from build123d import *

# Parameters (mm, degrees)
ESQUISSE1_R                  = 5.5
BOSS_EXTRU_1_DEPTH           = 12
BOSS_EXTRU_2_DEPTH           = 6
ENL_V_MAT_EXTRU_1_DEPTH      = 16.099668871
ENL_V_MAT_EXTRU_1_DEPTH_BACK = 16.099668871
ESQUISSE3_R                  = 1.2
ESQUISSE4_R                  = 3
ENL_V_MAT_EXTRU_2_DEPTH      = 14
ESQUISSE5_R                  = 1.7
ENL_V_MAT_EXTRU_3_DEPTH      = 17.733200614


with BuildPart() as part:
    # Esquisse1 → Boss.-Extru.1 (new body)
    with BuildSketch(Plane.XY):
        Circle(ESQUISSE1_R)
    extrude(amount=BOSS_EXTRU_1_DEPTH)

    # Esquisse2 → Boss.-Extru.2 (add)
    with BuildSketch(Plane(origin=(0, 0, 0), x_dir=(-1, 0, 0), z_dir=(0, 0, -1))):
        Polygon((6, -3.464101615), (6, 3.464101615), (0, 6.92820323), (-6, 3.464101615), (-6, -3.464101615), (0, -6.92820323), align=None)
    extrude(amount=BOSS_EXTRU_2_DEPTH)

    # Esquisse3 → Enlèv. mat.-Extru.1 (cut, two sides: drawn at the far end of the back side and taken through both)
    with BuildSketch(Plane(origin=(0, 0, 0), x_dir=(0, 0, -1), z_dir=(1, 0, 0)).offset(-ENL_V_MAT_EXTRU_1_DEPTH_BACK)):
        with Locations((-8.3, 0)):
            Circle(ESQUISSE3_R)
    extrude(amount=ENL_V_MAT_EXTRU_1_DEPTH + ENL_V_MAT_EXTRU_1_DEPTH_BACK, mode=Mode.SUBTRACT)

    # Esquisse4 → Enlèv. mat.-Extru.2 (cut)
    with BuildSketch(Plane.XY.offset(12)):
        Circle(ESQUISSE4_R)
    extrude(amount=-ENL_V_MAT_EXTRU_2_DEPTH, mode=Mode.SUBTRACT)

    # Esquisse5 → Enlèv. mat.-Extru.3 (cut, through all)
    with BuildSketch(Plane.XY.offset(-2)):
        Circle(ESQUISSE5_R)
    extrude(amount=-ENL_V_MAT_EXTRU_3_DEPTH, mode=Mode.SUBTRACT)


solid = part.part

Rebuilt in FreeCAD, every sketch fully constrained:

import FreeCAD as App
import Part
import Sketcher
from FreeCAD import Vector
Q = App.Units.Quantity

doc = App.newDocument("Part")
body = doc.addObject("PartDesign::Body", "Body")

# Sketch on XY plane
sketch1 = body.newObject("Sketcher::SketchObject", "Sketch")
sketch1.AttachmentSupport = (doc.getObject("XY_Plane"), [""])
sketch1.MapMode = "FlatFace"
sketch1.addGeometry(Part.Circle(Vector(0, 0, 0), Vector(0, 0, 1), 6), False)
sketch1.addConstraint(Sketcher.Constraint("Coincident", 0, 3, -1, 1))
sketch1.addConstraint(Sketcher.Constraint("Diameter", 0, Q("11 mm")))
pad1 = body.newObject("PartDesign::Pad", "Pad")
pad1.Profile = sketch1
pad1.Length = 12

# Sketch on XY plane
sketch2 = body.newObject("Sketcher::SketchObject", "Sketch001")
sketch2.AttachmentSupport = (doc.getObject("XY_Plane"), [""])
sketch2.MapMode = "FlatFace"
sketch2.addGeometry(Part.LineSegment(Vector(-6, -3, 0), Vector(-6, 3, 0)), False)
sketch2.addGeometry(Part.LineSegment(Vector(-6, 3, 0), Vector(0, 7, 0)), False)
sketch2.addGeometry(Part.LineSegment(Vector(0, 7, 0), Vector(6, 3, 0)), False)
sketch2.addGeometry(Part.LineSegment(Vector(6, 3, 0), Vector(6, -3, 0)), False)
sketch2.addGeometry(Part.LineSegment(Vector(6, -3, 0), Vector(0, -7, 0)), False)
sketch2.addGeometry(Part.LineSegment(Vector(0, -7, 0), Vector(-6, -3, 0)), False)
sketch2.addConstraint(Sketcher.Constraint("Coincident", 0, 2, 1, 1))
sketch2.addConstraint(Sketcher.Constraint("Coincident", 1, 2, 2, 1))
sketch2.addConstraint(Sketcher.Constraint("Coincident", 2, 2, 3, 1))
sketch2.addConstraint(Sketcher.Constraint("Coincident", 3, 2, 4, 1))
sketch2.addConstraint(Sketcher.Constraint("Coincident", 4, 2, 5, 1))
sketch2.addConstraint(Sketcher.Constraint("Coincident", 5, 2, 0, 1))
sketch2.addConstraint(Sketcher.Constraint("Vertical", 0))
sketch2.addConstraint(Sketcher.Constraint("Vertical", 3))
sketch2.addConstraint(Sketcher.Constraint("Symmetric", 0, 2, 3, 2, -1, 1))
sketch2.addConstraint(Sketcher.Constraint("Symmetric", 1, 2, 4, 2, -1, 1))
sketch2.addConstraint(Sketcher.Constraint("PointOnObject", 1, 2, -2))
sketch2.addConstraint(Sketcher.Constraint("Parallel", 2, 5))
sketch2.addConstraint(Sketcher.Constraint("Horizontal", 0, 2, 2, 2))
sketch2.addConstraint(Sketcher.Constraint("Angle", 1, Q("30 deg")))
sketch2.addConstraint(Sketcher.Constraint("DistanceX", 0, 2, -1, 1, Q("6 mm")))
sketch2.addConstraint(Sketcher.Constraint("DistanceY", -1, 1, 0, 2, Q("3.464102 mm")))
pad2 = body.newObject("PartDesign::Pad", "Pad001")
pad2.Profile = sketch2
pad2.Length = 6
pad2.Reversed = True

# Sketch on YZ plane
sketch3 = body.newObject("Sketcher::SketchObject", "Sketch002")
sketch3.AttachmentSupport = (doc.getObject("YZ_Plane"), [""])
sketch3.MapMode = "FlatFace"
sketch3.addGeometry(Part.Circle(Vector(0, 8.3, 0), Vector(0, 0, 1), 1.2), False)
sketch3.addConstraint(Sketcher.Constraint("PointOnObject", 0, 3, -2))
sketch3.addConstraint(Sketcher.Constraint("Diameter", 0, Q("2.4 mm")))
sketch3.addConstraint(Sketcher.Constraint("DistanceY", -1, 1, 0, 3, Q("8.3 mm")))
pocket1 = body.newObject("PartDesign::Pocket", "Pocket")
pocket1.Profile = sketch3
pocket1.Type = "ThroughAll"
pocket1.Midplane = True

# Sketch on XY plane
sketch4 = body.newObject("Sketcher::SketchObject", "Sketch003")
sketch4.AttachmentSupport = (doc.getObject("XY_Plane"), [""])
sketch4.MapMode = "FlatFace"
sketch4.AttachmentOffset = App.Placement(Vector(0, 0, 12), App.Rotation())
sketch4.addGeometry(Part.Circle(Vector(0, 0, 0), Vector(0, 0, 1), 3), False)
sketch4.addConstraint(Sketcher.Constraint("Coincident", 0, 3, -1, 1))
sketch4.addConstraint(Sketcher.Constraint("Diameter", 0, Q("6 mm")))
pocket2 = body.newObject("PartDesign::Pocket", "Pocket001")
pocket2.Profile = sketch4
pocket2.Length = 14

# Sketch on XY plane
sketch5 = body.newObject("Sketcher::SketchObject", "Sketch004")
sketch5.AttachmentSupport = (doc.getObject("XY_Plane"), [""])
sketch5.MapMode = "FlatFace"
sketch5.AttachmentOffset = App.Placement(Vector(0, 0, -2), App.Rotation())
sketch5.addGeometry(Part.Circle(Vector(0, 0, 0), Vector(0, 0, 1), 1.7), False)
sketch5.addConstraint(Sketcher.Constraint("Coincident", 0, 3, -1, 1))
sketch5.addConstraint(Sketcher.Constraint("Diameter", 0, Q("3.4 mm")))
pocket3 = body.newObject("PartDesign::Pocket", "Pocket002")
pocket3.Profile = sketch5
pocket3.Type = "ThroughAll"

doc.recompute()
